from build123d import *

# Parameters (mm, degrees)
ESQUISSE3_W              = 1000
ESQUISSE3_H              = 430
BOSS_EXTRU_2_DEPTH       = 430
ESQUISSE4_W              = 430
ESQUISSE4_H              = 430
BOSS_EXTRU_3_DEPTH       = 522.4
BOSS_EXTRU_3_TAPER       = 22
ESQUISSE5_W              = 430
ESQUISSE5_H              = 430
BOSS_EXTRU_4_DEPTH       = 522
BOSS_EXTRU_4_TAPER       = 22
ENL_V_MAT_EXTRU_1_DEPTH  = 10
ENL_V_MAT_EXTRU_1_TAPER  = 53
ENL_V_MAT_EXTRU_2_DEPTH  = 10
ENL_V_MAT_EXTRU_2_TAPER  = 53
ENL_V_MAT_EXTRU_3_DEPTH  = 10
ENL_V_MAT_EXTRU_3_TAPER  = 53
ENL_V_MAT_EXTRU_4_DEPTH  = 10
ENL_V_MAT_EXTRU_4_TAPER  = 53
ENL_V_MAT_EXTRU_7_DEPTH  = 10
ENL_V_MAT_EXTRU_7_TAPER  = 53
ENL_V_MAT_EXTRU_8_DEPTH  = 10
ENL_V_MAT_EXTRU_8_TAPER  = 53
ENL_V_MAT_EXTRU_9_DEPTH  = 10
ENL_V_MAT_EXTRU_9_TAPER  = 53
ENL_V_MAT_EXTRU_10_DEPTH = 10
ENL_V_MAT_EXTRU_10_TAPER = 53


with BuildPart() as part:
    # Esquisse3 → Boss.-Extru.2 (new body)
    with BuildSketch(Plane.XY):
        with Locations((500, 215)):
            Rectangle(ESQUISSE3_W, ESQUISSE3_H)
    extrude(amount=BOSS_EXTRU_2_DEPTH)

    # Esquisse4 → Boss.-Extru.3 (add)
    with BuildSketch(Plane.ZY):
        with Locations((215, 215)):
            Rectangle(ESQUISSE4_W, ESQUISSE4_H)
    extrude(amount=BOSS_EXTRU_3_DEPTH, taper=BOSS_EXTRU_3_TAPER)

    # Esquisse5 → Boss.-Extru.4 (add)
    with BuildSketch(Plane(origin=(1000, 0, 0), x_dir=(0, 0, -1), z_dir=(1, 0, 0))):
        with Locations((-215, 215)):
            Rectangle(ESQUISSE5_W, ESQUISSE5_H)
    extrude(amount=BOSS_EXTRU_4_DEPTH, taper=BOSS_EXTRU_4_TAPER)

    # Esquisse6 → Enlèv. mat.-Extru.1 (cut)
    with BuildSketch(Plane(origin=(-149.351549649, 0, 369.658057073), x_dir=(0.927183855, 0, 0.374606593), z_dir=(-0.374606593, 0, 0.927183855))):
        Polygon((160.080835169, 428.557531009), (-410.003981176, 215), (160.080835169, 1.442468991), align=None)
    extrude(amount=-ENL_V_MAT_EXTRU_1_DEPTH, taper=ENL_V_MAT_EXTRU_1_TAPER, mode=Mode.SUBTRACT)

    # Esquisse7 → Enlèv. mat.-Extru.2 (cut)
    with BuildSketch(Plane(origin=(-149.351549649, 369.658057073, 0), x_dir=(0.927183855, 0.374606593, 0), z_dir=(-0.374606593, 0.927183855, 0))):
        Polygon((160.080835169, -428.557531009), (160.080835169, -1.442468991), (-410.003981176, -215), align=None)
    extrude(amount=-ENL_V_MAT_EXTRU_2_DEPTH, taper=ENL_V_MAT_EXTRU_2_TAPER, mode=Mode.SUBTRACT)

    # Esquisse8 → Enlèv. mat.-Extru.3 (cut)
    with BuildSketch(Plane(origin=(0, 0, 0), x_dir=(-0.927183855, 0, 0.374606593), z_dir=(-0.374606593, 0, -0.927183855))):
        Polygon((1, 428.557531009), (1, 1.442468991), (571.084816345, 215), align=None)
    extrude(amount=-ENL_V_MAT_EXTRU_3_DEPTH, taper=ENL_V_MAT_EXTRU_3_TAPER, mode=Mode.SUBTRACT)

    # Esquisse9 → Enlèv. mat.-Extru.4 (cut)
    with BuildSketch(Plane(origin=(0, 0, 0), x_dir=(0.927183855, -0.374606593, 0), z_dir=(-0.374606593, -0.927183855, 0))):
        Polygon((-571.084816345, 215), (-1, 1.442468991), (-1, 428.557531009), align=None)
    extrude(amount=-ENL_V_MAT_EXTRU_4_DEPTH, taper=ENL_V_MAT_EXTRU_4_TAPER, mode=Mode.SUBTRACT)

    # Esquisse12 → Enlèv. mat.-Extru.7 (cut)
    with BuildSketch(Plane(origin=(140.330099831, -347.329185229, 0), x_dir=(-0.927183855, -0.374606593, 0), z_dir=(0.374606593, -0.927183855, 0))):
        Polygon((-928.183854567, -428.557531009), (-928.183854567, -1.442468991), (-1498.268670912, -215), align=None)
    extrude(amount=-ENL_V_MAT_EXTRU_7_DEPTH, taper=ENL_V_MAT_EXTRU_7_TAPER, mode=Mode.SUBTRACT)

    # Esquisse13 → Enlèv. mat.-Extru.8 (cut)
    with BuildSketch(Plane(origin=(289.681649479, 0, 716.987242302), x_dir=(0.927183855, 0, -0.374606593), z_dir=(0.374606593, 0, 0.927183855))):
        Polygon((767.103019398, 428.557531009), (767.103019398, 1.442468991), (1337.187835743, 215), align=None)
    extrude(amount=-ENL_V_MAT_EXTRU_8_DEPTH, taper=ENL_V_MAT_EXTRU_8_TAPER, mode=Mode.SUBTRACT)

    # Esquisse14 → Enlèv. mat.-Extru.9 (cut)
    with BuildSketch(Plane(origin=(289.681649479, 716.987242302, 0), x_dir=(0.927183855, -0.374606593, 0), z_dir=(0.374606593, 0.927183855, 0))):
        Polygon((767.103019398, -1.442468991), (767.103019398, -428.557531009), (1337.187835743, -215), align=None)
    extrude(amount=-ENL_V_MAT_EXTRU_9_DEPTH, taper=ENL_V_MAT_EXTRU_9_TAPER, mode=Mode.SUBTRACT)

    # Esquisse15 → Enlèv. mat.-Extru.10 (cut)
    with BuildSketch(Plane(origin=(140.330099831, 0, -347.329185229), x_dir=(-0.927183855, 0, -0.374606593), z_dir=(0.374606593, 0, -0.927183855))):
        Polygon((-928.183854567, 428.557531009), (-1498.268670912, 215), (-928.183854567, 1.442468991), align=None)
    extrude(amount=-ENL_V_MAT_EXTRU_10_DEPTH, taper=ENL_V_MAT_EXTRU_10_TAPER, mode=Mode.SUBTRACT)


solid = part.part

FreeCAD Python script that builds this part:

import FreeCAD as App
import Part
import Sketcher
Q = App.Units.Quantity


def add_polygon(sketch, points):
    """Adds a closed chain of lines whose ends are joined by coincident constraints."""
    first, n = sketch.GeometryCount, len(points)
    for a, b in zip(points, points[1:] + points[:1]):
        sketch.addGeometry(Part.LineSegment(App.Vector(*a, 0), App.Vector(*b, 0)), False)
    for i in range(n):
        sketch.addConstraint(Sketcher.Constraint("Coincident", first + i, 2, first + (i + 1) % n, 1))

doc = App.newDocument("Part")
body = doc.addObject("PartDesign::Body", "Body")

sketch1 = body.newObject("Sketcher::SketchObject", "Sketch")
sketch1.AttachmentSupport = (doc.getObject("XY_Plane"), [""])
sketch1.MapMode = "FlatFace"
add_polygon(sketch1, [(0, 430), (0, 0), (1000, 0), (1000, 430)])
sketch1.addConstraint([
    Sketcher.Constraint("Vertical", 0),
    Sketcher.Constraint("Horizontal", 1),
    Sketcher.Constraint("Vertical", 2),
    Sketcher.Constraint("Horizontal", 3),
    Sketcher.Constraint("Coincident", 0, 2, -1, 1),
    Sketcher.Constraint("DistanceX", 1, 1, 1, 2, Q("1000 mm")),
    Sketcher.Constraint("DistanceY", 0, 2, 0, 1, Q("430 mm")),
])
pad1 = body.newObject("PartDesign::Pad", "Pad")
pad1.Profile = sketch1
pad1.Length = 430

sketch2 = body.newObject("Sketcher::SketchObject", "Sketch001")
sketch2.AttachmentSupport = (doc.getObject("YZ_Plane"), [""])
sketch2.MapMode = "FlatFace"
add_polygon(sketch2, [(430, 0), (0, 0), (0, 430), (430, 430)])
sketch2.addConstraint([
    Sketcher.Constraint("Horizontal", 0),
    Sketcher.Constraint("Vertical", 1),
    Sketcher.Constraint("Horizontal", 2),
    Sketcher.Constraint("Vertical", 3),
    Sketcher.Constraint("Coincident", 0, 2, -1, 1),
    Sketcher.Constraint("Equal", 2, 1),
    Sketcher.Constraint("DistanceX", 0, 2, 0, 1, Q("430 mm")),
])
pad2 = body.newObject("PartDesign::Pad", "Pad001")
pad2.Profile = sketch2
pad2.Length = 522.4
pad2.Reversed = True
pad2.TaperAngle = -22

sketch3 = body.newObject("Sketcher::SketchObject", "Sketch002")
sketch3.AttachmentSupport = (doc.getObject("YZ_Plane"), [""])
sketch3.MapMode = "FlatFace"
sketch3.AttachmentOffset = App.Placement(App.Vector(0, 0, 1000), App.Rotation())
add_polygon(sketch3, [(430, 430), (0, 430), (0, 0), (430, 0)])
sketch3.addConstraint([
    Sketcher.Constraint("Horizontal", 0),
    Sketcher.Constraint("Vertical", 1),
    Sketcher.Constraint("Horizontal", 2),
    Sketcher.Constraint("Vertical", 3),
    Sketcher.Constraint("Coincident", 1, 2, -1, 1),
    Sketcher.Constraint("Equal", 2, 1),
    Sketcher.Constraint("DistanceX", 0, 2, 0, 1, Q("430 mm")),
])
pad3 = body.newObject("PartDesign::Pad", "Pad002")
pad3.Profile = sketch3
pad3.Length = 522
pad3.TaperAngle = -22

sketch4 = body.newObject("Sketcher::SketchObject", "Sketch003")
sketch4.Placement = App.Placement(App.Vector(-149.35155, 0, 369.658057), App.Rotation(App.Vector(0.927183855, 0, 0.374606593), App.Vector(0, 1, 0), App.Vector(-0.374606593, 0, 0.927183855), "ZXY"))
add_polygon(sketch4, [(160, 429), (-410, 215), (160, 1)])
sketch4.addConstraint([
    Sketcher.Constraint("Vertical", 2),
    Sketcher.Constraint("Equal", 0, 1),
    Sketcher.Constraint("DistanceY", -1, 1, 0, 2, Q("215 mm")),
    Sketcher.Constraint("Distance", 0, Q("608.772139 mm")),
    Sketcher.Constraint("DistanceY", 2, 1, 2, 2, Q("427.115062 mm")),
    Sketcher.Constraint("DistanceX", 0, 2, -1, 1, Q("410.003981 mm")),
])
pocket1 = body.newObject("PartDesign::Pocket", "Pocket")
pocket1.Profile = sketch4
pocket1.Length = 10
pocket1.TaperAngle = -53

sketch5 = body.newObject("Sketcher::SketchObject", "Sketch004")
sketch5.Placement = App.Placement(App.Vector(-149.35155, 369.658057, 0), App.Rotation(App.Vector(0.927183855, 0.374606593, 0), App.Vector(0, 0, -1), App.Vector(-0.374606593, 0.927183855, 0), "ZXY"))
add_polygon(sketch5, [(160, -429), (160, -1), (-410, -215)])
sketch5.addConstraint([
    Sketcher.Constraint("Vertical", 0),
    Sketcher.Constraint("Equal", 1, 2),
    Sketcher.Constraint("DistanceY", 1, 2, -1, 1, Q("215 mm")),
    Sketcher.Constraint("Distance", 1, Q("608.772139 mm")),
    Sketcher.Constraint("DistanceY", 0, 1, 0, 2, Q("427.115062 mm")),
    Sketcher.Constraint("DistanceX", 1, 2, -1, 1, Q("410.003981 mm")),
])
pocket2 = body.newObject("PartDesign::Pocket", "Pocket001")
pocket2.Profile = sketch5
pocket2.Length = 10
pocket2.TaperAngle = -53

sketch6 = body.newObject("Sketcher::SketchObject", "Sketch005")
sketch6.Placement = App.Placement(App.Vector(0, 0, 0), App.Rotation(App.Vector(-0.927183855, 0, 0.374606593), App.Vector(0, 1, 0), App.Vector(-0.374606593, 0, -0.927183855), "ZXY"))
add_polygon(sketch6, [(1, 429), (1, 1), (571, 215)])
sketch6.addConstraint([
    Sketcher.Constraint("Vertical", 0),
    Sketcher.Constraint("Equal", 1, 2),
    Sketcher.Constraint("DistanceX", -1, 1, 0, 2, Q("1 mm")),
    Sketcher.Constraint("DistanceY", -1, 1, 1, 2, Q("215 mm")),
    Sketcher.Constraint("Distance", 1, Q("608.772139 mm")),
    Sketcher.Constraint("DistanceY", 0, 2, 0, 1, Q("427.115062 mm")),
])
pocket3 = body.newObject("PartDesign::Pocket", "Pocket002")
pocket3.Profile = sketch6
pocket3.Length = 10
pocket3.TaperAngle = -53

sketch7 = body.newObject("Sketcher::SketchObject", "Sketch006")
sketch7.Placement = App.Placement(App.Vector(0, 0, 0), App.Rotation(App.Vector(0.927183855, -0.374606593, 0), App.Vector(0, 0, 1), App.Vector(-0.374606593, -0.927183855, 0), "ZXY"))
add_polygon(sketch7, [(-571, 215), (-1, 1), (-1, 429)])
sketch7.addConstraint([
    Sketcher.Constraint("Vertical", 1),
    Sketcher.Constraint("Equal", 0, 2),
    Sketcher.Constraint("DistanceX", 0, 2, -1, 1, Q("1 mm")),
    Sketcher.Constraint("DistanceY", -1, 1, 2, 2, Q("215 mm")),
    Sketcher.Constraint("Distance", 0, Q("608.772139 mm")),
    Sketcher.Constraint("DistanceY", 1, 1, 1, 2, Q("427.115062 mm")),
])
pocket4 = body.newObject("PartDesign::Pocket", "Pocket003")
pocket4.Profile = sketch7
pocket4.Length = 10
pocket4.TaperAngle = -53

sketch8 = body.newObject("Sketcher::SketchObject", "Sketch007")
sketch8.Placement = App.Placement(App.Vector(140.3301, -347.329185, 0), App.Rotation(App.Vector(-0.927183855, -0.374606593, 0), App.Vector(0, 0, -1), App.Vector(0.374606593, -0.927183855, 0), "ZXY"))
add_polygon(sketch8, [(-928, -429), (-928, -1), (-1498, -215)])
sketch8.addConstraint([
    Sketcher.Constraint("Vertical", 0),
    Sketcher.Constraint("Equal", 1, 2),
    Sketcher.Constraint("DistanceY", 1, 2, -1, 1, Q("215 mm")),
    Sketcher.Constraint("Distance", 1, Q("608.772139 mm")),
    Sketcher.Constraint("DistanceY", 0, 1, 0, 2, Q("427.115062 mm")),
    Sketcher.Constraint("DistanceX", 1, 2, -1, 1, Q("1498.268672 mm")),
])
pocket5 = body.newObject("PartDesign::Pocket", "Pocket004")
pocket5.Profile = sketch8
pocket5.Length = 10
pocket5.TaperAngle = -53

sketch9 = body.newObject("Sketcher::SketchObject", "Sketch008")
sketch9.Placement = App.Placement(App.Vector(289.681649, 0, 716.987242), App.Rotation(App.Vector(0.927183855, 0, -0.374606593), App.Vector(0, 1, 0), App.Vector(0.374606593, 0, 0.927183855), "ZXY"))
add_polygon(sketch9, [(767, 429), (767, 1), (1337, 215)])
sketch9.addConstraint([
    Sketcher.Constraint("Vertical", 0),
    Sketcher.Constraint("Equal", 1, 2),
    Sketcher.Constraint("DistanceY", -1, 1, 1, 2, Q("215 mm")),
    Sketcher.Constraint("Distance", 1, Q("608.772139 mm")),
    Sketcher.Constraint("DistanceY", 0, 2, 0, 1, Q("427.115062 mm")),
    Sketcher.Constraint("DistanceX", -1, 1, 0, 2, Q("767.10302 mm")),
])
pocket6 = body.newObject("PartDesign::Pocket", "Pocket005")
pocket6.Profile = sketch9
pocket6.Length = 10
pocket6.TaperAngle = -53

sketch10 = body.newObject("Sketcher::SketchObject", "Sketch009")
sketch10.Placement = App.Placement(App.Vector(289.681649, 716.987242, 0), App.Rotation(App.Vector(0.927183855, -0.374606593, 0), App.Vector(0, 0, -1), App.Vector(0.374606593, 0.927183855, 0), "ZXY"))
add_polygon(sketch10, [(767, -1), (767, -429), (1337, -215)])
sketch10.addConstraint([
    Sketcher.Constraint("Vertical", 0),
    Sketcher.Constraint("Equal", 1, 2),
    Sketcher.Constraint("DistanceY", 1, 2, -1, 1, Q("215 mm")),
    Sketcher.Constraint("Distance", 1, Q("608.772139 mm")),
    Sketcher.Constraint("DistanceY", 0, 2, 0, 1, Q("427.115062 mm")),
    Sketcher.Constraint("DistanceX", -1, 1, 0, 2, Q("767.10302 mm")),
])
pocket7 = body.newObject("PartDesign::Pocket", "Pocket006")
pocket7.Profile = sketch10
pocket7.Length = 10
pocket7.TaperAngle = -53

sketch11 = body.newObject("Sketcher::SketchObject", "Sketch010")
sketch11.Placement = App.Placement(App.Vector(140.3301, 0, -347.329185), App.Rotation(App.Vector(-0.927183855, 0, -0.374606593), App.Vector(0, 1, 0), App.Vector(0.374606593, 0, -0.927183855), "ZXY"))
add_polygon(sketch11, [(-928, 429), (-1498, 215), (-928, 1)])
sketch11.addConstraint([
    Sketcher.Constraint("Vertical", 2),
    Sketcher.Constraint("Equal", 0, 1),
    Sketcher.Constraint("DistanceY", -1, 1, 0, 2, Q("215 mm")),
    Sketcher.Constraint("Distance", 0, Q("608.772139 mm")),
    Sketcher.Constraint("DistanceY", 2, 1, 2, 2, Q("427.115062 mm")),
    Sketcher.Constraint("DistanceX", 0, 2, -1, 1, Q("1498.268672 mm")),
])
pocket8 = body.newObject("PartDesign::Pocket", "Pocket007")
pocket8.Profile = sketch11
pocket8.Length = 10
pocket8.TaperAngle = -53

doc.recompute()
